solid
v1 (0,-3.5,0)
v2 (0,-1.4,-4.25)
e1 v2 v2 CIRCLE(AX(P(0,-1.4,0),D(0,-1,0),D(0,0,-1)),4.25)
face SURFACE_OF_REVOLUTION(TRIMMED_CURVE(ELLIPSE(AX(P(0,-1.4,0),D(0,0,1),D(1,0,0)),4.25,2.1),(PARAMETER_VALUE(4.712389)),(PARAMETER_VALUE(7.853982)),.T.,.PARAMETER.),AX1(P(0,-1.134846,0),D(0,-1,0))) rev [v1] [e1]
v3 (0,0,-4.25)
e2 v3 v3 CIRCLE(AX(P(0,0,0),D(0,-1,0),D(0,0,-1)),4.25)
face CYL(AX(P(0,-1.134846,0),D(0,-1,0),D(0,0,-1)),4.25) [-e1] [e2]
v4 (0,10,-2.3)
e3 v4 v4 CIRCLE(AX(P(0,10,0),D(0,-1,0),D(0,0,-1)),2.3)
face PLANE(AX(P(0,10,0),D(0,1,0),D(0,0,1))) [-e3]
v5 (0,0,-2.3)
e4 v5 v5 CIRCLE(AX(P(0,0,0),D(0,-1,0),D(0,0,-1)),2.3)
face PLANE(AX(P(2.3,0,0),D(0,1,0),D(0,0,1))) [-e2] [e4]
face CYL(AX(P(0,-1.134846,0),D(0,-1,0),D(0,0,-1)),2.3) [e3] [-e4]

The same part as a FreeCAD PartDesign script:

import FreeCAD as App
import Part
import Sketcher

V = App.Vector

doc = App.newDocument("Part")
params = doc.addObject("Spreadsheet::Sheet", "Params")
for row, (alias, value) in enumerate([
    ("sketch1_height", "10 mm"),
    ("sketch1_width", "2.3 mm"),
    ("revolution_angle", "360 deg"),
], start=1):
    params.set(f"A{row}", alias)
    params.set(f"B{row}", "=" + value)
    params.setAlias(f"B{row}", alias)

body = doc.addObject("PartDesign::Body", "Body")

# Sketch on XY plane
sketch1 = body.newObject("Sketcher::SketchObject", "Sketch")
sketch1.AttachmentSupport = (doc.getObject("XY_Plane"), [""])
sketch1.MapMode = "FlatFace"
sketch1.addGeometry(Part.LineSegment(V(0, 10, 0), V(0, -3.5, 0)), False)
sketch1.addGeometry(Part.BSplineCurve([V(0, -3.5, 0), V(4.25, -3.5, 0), V(4.25, -1.4, 0)], [3, 3], [4.71238898, 6.283185307], False, 2, [1, 0.707106781, 1], False), False)
sketch1.addGeometry(Part.LineSegment(V(4.25, -1.4, 0), V(4.25, 0, 0)), False)
sketch1.addGeometry(Part.LineSegment(V(4.25, 0, 0), V(2.3, 0, 0)), False)
sketch1.addGeometry(Part.LineSegment(V(2.3, 0, 0), V(2.3, 10, 0)), False)
sketch1.addGeometry(Part.LineSegment(V(2.3, 10, 0), V(0, 10, 0)), False)
sketch1.addConstraint(Sketcher.Constraint("Block", 1))
sketch1.addConstraint(Sketcher.Constraint("Coincident", 0, 2, 1, 1))
sketch1.addConstraint(Sketcher.Constraint("Coincident", 1, 2, 2, 1))
sketch1.addConstraint(Sketcher.Constraint("Coincident", 2, 2, 3, 1))
sketch1.addConstraint(Sketcher.Constraint("Coincident", 3, 2, 4, 1))
sketch1.addConstraint(Sketcher.Constraint("Coincident", 4, 2, 5, 1))
sketch1.addConstraint(Sketcher.Constraint("Coincident", 5, 2, 0, 1))
sketch1.addConstraint(Sketcher.Constraint("Vertical", 0))
sketch1.addConstraint(Sketcher.Constraint("Vertical", 2))
sketch1.addConstraint(Sketcher.Constraint("Horizontal", 3))
sketch1.addConstraint(Sketcher.Constraint("Vertical", 4))
sketch1.addConstraint(Sketcher.Constraint("Horizontal", 5))
sketch1.addConstraint(Sketcher.Constraint("PointOnObject", 2, 2, -1))
sketch1.addConstraint(Sketcher.Constraint("DistanceY", 4, 1, 4, 2, 10.0))
sketch1.addConstraint(Sketcher.Constraint("DistanceX", 5, 2, 5, 1, 2.3))
sketch1.setExpression("Constraints[13]", "Params.sketch1_height")
sketch1.setExpression("Constraints[14]", "Params.sketch1_width")
revolution = body.newObject("PartDesign::Revolution", "Revolution")
revolution.Profile = sketch1
revolution.ReferenceAxis = (sketch1, ["V_Axis"])
revolution.setExpression("Angle", "Params.revolution_angle")

doc.recompute()
